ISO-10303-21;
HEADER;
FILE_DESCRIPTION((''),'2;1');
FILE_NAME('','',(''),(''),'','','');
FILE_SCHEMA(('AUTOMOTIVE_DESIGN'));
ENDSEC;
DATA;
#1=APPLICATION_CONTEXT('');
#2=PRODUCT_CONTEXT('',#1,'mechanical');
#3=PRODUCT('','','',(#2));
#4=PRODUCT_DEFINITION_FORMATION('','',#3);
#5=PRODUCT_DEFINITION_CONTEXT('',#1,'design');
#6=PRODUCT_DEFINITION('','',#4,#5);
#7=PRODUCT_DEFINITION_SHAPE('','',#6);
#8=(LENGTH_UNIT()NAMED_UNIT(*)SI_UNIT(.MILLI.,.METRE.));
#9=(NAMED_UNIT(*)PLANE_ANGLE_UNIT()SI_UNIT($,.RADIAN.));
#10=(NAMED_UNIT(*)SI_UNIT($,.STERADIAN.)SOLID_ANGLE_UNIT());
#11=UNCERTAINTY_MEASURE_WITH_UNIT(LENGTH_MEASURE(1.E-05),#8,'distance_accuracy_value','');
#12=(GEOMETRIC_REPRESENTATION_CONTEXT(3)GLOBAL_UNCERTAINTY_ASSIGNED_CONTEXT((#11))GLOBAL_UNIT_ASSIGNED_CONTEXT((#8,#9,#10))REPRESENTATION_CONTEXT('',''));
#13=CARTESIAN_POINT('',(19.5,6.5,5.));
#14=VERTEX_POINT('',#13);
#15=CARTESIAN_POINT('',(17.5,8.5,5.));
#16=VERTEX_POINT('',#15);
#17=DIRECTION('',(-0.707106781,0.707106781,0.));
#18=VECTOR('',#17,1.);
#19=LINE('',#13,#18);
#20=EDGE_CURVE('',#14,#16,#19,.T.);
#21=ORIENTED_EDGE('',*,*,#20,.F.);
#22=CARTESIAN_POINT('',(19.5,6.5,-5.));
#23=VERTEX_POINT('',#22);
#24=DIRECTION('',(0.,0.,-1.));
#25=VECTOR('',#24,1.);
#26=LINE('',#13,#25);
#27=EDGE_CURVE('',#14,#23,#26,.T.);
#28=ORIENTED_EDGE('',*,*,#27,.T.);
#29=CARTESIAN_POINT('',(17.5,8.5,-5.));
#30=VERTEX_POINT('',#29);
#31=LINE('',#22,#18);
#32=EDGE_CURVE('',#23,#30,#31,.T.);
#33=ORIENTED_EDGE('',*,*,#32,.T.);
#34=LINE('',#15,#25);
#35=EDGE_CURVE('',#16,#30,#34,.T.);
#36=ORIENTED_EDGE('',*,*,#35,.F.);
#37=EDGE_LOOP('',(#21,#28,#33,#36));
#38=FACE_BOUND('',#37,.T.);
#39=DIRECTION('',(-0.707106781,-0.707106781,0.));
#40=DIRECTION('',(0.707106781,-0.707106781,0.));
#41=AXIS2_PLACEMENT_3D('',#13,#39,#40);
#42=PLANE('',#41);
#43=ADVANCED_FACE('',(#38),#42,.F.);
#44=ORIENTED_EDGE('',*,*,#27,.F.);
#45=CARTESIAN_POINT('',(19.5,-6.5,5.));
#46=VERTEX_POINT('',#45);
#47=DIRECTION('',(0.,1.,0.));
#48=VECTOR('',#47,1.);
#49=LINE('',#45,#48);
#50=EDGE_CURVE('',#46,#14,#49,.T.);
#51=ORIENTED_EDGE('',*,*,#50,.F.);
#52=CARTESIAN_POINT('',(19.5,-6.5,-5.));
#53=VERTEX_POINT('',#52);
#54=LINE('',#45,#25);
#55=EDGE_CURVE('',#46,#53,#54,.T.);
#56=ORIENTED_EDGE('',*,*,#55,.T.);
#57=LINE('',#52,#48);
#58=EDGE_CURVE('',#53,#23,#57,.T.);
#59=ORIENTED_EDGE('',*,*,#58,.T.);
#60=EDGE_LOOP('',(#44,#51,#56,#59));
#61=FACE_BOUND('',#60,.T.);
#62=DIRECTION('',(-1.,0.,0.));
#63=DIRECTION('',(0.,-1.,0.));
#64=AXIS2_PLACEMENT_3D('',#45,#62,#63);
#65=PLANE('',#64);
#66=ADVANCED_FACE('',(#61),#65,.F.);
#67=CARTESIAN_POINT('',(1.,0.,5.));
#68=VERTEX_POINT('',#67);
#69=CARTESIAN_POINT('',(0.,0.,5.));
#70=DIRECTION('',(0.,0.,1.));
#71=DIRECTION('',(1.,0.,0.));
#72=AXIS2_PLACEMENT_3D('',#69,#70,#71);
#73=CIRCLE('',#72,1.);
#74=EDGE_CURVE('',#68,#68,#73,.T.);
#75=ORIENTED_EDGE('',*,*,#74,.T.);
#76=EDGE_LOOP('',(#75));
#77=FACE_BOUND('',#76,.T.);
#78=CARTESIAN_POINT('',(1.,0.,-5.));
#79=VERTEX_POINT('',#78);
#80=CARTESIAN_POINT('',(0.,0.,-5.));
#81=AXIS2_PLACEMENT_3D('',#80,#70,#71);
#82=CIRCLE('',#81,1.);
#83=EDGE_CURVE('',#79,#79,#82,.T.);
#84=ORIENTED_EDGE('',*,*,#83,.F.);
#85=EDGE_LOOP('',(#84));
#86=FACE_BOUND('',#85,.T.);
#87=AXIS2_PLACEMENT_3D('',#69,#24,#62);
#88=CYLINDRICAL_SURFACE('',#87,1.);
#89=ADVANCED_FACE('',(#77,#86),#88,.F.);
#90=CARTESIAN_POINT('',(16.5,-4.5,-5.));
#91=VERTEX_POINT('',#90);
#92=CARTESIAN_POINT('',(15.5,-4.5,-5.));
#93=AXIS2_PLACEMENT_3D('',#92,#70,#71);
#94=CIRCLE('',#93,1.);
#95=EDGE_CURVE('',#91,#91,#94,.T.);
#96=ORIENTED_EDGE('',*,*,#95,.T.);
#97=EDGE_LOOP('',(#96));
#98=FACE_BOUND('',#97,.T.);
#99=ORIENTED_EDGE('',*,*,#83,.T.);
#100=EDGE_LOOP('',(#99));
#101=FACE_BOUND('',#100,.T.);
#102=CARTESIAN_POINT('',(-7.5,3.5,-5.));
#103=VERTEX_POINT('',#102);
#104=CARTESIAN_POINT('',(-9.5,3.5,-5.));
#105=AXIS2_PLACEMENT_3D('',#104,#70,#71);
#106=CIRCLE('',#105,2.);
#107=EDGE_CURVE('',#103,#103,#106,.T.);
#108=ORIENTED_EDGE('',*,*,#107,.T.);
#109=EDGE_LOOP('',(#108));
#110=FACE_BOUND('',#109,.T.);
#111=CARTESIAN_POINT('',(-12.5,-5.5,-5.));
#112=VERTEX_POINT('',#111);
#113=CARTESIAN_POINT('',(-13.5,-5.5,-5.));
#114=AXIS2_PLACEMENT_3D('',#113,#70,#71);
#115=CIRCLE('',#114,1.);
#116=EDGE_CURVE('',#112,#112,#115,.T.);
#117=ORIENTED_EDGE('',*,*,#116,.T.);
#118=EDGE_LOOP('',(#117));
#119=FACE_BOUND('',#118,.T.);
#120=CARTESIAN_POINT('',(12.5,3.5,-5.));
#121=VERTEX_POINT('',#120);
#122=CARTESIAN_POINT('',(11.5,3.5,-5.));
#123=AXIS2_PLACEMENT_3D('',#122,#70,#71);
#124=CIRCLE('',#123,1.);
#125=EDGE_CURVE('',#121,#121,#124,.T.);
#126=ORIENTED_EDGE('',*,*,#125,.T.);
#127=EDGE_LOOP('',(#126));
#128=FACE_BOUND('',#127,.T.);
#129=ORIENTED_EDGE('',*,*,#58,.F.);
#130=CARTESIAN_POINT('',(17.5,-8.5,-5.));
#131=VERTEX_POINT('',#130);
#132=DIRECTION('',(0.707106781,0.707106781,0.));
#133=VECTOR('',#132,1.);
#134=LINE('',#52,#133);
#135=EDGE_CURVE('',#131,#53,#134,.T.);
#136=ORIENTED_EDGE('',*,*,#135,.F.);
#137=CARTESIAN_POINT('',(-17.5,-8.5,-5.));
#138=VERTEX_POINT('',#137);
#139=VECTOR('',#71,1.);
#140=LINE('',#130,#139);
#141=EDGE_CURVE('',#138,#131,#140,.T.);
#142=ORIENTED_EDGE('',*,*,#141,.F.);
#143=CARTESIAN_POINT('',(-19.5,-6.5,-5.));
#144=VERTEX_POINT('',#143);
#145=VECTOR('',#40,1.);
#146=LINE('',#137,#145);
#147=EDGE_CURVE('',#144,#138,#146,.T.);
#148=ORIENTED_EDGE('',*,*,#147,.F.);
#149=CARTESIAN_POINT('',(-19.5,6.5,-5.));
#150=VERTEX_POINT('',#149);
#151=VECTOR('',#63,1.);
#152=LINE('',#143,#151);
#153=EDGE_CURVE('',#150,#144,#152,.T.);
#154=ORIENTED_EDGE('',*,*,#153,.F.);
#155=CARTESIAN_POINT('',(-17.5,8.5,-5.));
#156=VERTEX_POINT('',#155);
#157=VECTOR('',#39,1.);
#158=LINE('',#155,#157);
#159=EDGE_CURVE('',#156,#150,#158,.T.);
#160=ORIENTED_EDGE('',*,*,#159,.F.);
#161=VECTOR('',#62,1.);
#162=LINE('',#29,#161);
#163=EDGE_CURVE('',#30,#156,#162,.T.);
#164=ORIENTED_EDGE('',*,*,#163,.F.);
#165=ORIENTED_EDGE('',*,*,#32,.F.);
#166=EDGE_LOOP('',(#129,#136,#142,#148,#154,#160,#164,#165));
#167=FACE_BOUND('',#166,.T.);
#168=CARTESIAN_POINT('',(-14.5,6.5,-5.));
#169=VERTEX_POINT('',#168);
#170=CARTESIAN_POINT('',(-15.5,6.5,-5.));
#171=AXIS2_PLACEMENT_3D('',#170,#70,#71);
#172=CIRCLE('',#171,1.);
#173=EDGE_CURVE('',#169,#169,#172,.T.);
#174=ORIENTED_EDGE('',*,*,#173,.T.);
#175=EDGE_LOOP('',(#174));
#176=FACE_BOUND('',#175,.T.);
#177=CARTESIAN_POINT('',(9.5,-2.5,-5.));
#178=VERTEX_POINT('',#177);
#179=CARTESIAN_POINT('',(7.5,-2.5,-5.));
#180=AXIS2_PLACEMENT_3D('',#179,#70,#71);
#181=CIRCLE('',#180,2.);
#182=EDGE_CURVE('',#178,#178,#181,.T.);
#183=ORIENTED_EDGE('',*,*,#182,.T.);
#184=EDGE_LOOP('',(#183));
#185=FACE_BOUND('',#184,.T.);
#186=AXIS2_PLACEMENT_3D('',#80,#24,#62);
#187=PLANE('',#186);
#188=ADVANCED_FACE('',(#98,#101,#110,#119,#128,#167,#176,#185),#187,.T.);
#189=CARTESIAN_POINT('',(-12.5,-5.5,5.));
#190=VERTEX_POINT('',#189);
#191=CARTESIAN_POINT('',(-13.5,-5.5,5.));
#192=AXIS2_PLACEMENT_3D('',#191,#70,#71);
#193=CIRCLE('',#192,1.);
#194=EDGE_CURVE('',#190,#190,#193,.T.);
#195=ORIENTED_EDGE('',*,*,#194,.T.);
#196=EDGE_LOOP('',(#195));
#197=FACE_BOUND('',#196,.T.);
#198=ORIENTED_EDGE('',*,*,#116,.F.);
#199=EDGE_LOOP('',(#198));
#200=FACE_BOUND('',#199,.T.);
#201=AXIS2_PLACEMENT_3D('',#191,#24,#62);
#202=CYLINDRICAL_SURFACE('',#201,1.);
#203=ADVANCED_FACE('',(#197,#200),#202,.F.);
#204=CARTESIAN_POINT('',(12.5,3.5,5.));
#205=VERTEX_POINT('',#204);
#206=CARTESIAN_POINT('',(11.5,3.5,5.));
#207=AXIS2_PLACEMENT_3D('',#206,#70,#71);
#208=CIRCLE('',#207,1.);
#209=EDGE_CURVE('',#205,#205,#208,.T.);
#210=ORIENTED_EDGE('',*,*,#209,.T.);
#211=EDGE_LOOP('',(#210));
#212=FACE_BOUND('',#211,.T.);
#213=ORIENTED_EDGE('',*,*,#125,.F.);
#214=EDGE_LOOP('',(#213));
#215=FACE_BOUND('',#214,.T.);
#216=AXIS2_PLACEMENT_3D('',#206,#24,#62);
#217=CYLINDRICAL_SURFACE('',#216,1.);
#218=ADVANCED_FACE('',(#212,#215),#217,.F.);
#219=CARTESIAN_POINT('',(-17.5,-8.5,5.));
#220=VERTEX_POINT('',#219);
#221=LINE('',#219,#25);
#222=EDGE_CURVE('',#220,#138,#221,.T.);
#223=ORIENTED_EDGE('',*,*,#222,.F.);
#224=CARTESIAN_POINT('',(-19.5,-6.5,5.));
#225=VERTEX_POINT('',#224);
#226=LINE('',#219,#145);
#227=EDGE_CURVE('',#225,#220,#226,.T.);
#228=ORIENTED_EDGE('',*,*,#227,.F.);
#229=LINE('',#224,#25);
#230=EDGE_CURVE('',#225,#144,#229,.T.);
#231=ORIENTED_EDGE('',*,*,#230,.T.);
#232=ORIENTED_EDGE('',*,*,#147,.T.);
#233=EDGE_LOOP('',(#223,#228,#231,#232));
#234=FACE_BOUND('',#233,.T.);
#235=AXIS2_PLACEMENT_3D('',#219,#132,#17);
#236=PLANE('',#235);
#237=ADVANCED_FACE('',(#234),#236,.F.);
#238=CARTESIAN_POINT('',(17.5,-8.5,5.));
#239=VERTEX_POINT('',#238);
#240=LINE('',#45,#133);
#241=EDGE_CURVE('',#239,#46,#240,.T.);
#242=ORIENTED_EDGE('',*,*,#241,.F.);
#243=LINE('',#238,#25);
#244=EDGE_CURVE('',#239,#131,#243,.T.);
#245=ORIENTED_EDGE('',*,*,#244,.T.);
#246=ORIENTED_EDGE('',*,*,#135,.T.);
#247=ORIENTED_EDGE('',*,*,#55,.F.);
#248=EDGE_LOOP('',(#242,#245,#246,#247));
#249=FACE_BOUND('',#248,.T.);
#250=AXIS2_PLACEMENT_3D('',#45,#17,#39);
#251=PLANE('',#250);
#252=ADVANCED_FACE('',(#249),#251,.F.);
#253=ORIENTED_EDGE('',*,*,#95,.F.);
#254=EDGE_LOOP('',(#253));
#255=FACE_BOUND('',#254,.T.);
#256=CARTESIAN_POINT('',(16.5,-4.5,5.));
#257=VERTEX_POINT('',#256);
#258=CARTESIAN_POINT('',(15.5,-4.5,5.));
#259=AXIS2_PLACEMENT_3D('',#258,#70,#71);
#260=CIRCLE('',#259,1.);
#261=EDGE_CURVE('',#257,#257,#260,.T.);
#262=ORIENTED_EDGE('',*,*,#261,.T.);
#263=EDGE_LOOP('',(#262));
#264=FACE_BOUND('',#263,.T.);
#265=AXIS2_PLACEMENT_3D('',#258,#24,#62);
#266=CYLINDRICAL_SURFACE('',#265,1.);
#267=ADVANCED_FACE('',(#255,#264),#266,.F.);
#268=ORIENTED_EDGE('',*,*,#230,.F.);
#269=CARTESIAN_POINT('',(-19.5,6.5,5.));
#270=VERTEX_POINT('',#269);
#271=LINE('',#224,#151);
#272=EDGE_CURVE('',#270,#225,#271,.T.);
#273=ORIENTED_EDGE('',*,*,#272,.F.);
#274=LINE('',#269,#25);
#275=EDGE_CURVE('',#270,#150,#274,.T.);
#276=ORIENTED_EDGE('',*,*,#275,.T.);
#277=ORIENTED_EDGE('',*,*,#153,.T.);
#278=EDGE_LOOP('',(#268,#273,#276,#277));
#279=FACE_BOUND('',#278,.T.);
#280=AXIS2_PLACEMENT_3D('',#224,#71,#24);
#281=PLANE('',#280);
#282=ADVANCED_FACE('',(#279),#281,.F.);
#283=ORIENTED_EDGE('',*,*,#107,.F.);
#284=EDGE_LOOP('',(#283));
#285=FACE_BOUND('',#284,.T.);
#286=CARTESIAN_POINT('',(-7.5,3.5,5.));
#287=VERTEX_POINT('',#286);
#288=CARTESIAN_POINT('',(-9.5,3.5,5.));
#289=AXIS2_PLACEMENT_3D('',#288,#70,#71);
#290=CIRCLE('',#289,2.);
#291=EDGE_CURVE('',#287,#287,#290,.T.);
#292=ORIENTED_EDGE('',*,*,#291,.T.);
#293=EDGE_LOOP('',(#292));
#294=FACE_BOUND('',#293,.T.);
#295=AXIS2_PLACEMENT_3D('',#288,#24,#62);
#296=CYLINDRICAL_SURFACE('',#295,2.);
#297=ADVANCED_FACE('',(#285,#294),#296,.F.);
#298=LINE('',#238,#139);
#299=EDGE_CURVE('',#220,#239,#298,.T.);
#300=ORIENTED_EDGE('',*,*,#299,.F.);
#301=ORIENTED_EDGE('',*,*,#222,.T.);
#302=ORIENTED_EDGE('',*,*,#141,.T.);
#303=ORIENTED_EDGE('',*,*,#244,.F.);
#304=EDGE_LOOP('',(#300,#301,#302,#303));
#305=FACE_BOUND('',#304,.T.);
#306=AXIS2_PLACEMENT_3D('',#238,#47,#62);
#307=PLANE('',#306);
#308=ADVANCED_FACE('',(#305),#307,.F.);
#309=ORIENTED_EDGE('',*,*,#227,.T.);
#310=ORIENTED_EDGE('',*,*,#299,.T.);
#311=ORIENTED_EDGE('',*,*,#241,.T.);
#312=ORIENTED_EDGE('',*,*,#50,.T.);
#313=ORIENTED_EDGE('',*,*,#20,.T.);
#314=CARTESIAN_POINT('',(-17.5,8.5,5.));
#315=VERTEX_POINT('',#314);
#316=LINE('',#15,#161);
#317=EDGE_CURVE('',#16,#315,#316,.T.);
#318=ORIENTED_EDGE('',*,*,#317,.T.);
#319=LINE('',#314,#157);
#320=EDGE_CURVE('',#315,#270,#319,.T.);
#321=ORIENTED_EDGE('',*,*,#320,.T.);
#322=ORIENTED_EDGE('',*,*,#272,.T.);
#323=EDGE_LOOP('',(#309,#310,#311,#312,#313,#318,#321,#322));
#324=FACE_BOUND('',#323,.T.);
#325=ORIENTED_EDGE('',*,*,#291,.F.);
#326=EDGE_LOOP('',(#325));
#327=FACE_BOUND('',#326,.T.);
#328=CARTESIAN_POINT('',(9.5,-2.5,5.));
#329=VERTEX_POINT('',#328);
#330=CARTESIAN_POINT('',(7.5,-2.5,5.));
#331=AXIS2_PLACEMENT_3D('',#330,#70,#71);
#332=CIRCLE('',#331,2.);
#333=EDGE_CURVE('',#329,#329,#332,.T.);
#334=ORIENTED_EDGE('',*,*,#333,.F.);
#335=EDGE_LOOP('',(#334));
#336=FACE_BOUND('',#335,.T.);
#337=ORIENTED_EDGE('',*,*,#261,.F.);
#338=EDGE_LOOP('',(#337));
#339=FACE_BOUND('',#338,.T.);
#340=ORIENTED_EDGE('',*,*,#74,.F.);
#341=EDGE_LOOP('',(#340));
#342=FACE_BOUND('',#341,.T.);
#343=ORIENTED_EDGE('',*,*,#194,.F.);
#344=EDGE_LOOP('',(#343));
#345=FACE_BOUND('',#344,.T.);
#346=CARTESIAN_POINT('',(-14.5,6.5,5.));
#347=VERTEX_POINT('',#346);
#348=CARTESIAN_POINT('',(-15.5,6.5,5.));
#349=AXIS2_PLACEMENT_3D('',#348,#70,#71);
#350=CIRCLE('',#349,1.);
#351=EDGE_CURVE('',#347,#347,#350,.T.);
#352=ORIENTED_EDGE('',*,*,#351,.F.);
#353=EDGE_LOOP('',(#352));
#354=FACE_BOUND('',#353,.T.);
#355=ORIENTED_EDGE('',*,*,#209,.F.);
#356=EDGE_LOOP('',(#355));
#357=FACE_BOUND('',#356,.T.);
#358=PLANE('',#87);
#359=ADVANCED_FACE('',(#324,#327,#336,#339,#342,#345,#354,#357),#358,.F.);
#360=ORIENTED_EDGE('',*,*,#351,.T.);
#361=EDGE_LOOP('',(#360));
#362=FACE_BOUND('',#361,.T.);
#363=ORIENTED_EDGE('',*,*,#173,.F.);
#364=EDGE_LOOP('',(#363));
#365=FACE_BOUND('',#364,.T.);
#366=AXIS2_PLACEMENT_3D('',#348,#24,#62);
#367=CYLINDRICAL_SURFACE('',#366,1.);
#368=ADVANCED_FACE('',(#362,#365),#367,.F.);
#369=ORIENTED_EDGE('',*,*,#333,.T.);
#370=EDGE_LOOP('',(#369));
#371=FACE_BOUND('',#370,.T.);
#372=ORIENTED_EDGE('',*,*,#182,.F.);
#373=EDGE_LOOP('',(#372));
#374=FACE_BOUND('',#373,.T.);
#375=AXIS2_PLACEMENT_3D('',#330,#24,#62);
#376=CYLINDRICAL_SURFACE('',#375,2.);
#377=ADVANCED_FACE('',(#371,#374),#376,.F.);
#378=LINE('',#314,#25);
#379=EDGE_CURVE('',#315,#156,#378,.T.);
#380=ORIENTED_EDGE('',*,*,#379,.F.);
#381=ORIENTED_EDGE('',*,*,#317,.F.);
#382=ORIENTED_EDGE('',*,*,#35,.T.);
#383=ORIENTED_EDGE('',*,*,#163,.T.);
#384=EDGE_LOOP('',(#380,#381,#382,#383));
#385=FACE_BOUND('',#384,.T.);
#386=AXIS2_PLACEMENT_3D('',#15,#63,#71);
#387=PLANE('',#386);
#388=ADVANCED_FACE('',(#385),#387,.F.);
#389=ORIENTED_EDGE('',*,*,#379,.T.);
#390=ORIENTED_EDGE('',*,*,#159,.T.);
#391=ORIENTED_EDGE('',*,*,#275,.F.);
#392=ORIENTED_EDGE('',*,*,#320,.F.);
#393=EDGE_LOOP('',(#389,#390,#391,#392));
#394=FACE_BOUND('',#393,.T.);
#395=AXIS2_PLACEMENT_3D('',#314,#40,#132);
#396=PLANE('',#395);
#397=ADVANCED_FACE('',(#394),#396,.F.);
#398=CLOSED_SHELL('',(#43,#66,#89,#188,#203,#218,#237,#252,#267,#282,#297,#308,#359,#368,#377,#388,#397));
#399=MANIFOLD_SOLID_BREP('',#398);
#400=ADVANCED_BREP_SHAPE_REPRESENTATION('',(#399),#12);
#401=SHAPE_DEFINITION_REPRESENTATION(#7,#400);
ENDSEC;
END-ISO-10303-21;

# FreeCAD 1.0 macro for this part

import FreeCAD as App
import Part
import Sketcher
from FreeCAD import Vector


def add_polygon(sketch, points):
    """Adds a closed chain of lines whose ends are joined by coincident constraints."""
    first, n = sketch.GeometryCount, len(points)
    for a, b in zip(points, points[1:] + points[:1]):
        sketch.addGeometry(Part.LineSegment(App.Vector(*a, 0), App.Vector(*b, 0)), False)
    for i in range(n):
        sketch.addConstraint(Sketcher.Constraint("Coincident", first + i, 2, first + (i + 1) % n, 1))

doc = App.newDocument("Part")
body = doc.addObject("PartDesign::Body", "Body")

sketch1 = doc.addObject("Sketcher::SketchObject", "Sketch")
body.addObject(sketch1)
sketch1.AttachmentSupport = (doc.XY_Plane, [""])
sketch1.MapMode = "FlatFace"
add_polygon(sketch1, [(-17.5, 8.5), (-19.5, 6.5), (-19.5, -6.5), (-17.5, -8.5), (17.5, -8.5), (19.5, -6.5), (19.5, 6.5), (17.5, 8.5)])
sketch1.addGeometry(Part.Circle(Vector(-13.5, -5.5, 0), Vector(0, 0, 1), 1), False)
sketch1.addGeometry(Part.Circle(Vector(15.5, -4.5, 0), Vector(0, 0, 1), 1), False)
sketch1.addGeometry(Part.Circle(Vector(7.5, -2.5, 0), Vector(0, 0, 1), 2), False)
sketch1.addGeometry(Part.Circle(Vector(0, 0, 0), Vector(0, 0, 1), 1), False)
sketch1.addGeometry(Part.Circle(Vector(-9.5, 3.5, 0), Vector(0, 0, 1), 2), False)
sketch1.addGeometry(Part.Circle(Vector(-15.5, 6.5, 0), Vector(0, 0, 1), 1), False)
sketch1.addGeometry(Part.Circle(Vector(11.5, 3.5, 0), Vector(0, 0, 1), 1), False)
sketch1.addConstraint(Sketcher.Constraint("Vertical", 1))
sketch1.addConstraint(Sketcher.Constraint("Horizontal", 3))
sketch1.addConstraint(Sketcher.Constraint("Vertical", 5))
sketch1.addConstraint(Sketcher.Constraint("Horizontal", 7))
sketch1.addConstraint(Sketcher.Constraint("Coincident", 11, 3, -1, 1))
sketch1.addConstraint(Sketcher.Constraint("Equal", 8, 9))
sketch1.addConstraint(Sketcher.Constraint("Equal", 9, 11))
sketch1.addConstraint(Sketcher.Constraint("Equal", 10, 12))
sketch1.addConstraint(Sketcher.Constraint("Equal", 11, 13))
sketch1.addConstraint(Sketcher.Constraint("Equal", 13, 14))
sketch1.addConstraint(Sketcher.Constraint("Symmetric", 0, 2, 4, 2, -1, 1))
sketch1.addConstraint(Sketcher.Constraint("Symmetric", 2, 2, 6, 2, -1, 1))
sketch1.addConstraint(Sketcher.Constraint("Perpendicular", 0, 2))
sketch1.addConstraint(Sketcher.Constraint("Perpendicular", 2, 4))
sketch1.addConstraint(Sketcher.Constraint("Perpendicular", 4, 6))
sketch1.addConstraint(Sketcher.Constraint("Horizontal", 12, 3, 14, 3))
sketch1.addConstraint(Sketcher.Constraint("Horizontal", 13, 3, 0, 2))
sketch1.addConstraint(Sketcher.Constraint("Horizontal", 1, 2, 4, 2))
sketch1.addConstraint(Sketcher.Constraint("Vertical", 3, 2, 6, 2))
sketch1.addConstraint(Sketcher.Constraint("Diameter", 8, 2.0))
sketch1.addConstraint(Sketcher.Constraint("Diameter", 10, 4.0))
sketch1.addConstraint(Sketcher.Constraint("DistanceX", 3, 1, 3, 2, 35.0))
sketch1.addConstraint(Sketcher.Constraint("DistanceY", 1, 2, 1, 1, 13.0))
sketch1.addConstraint(Sketcher.Constraint("DistanceX", 8, 3, 9, 3, 29.0))
sketch1.addConstraint(Sketcher.Constraint("DistanceY", 8, 3, 9, 3, 1.0))
sketch1.addConstraint(Sketcher.Constraint("DistanceX", 10, 3, 9, 3, 8.0))
sketch1.addConstraint(Sketcher.Constraint("DistanceY", 9, 3, 10, 3, 2.0))
sketch1.addConstraint(Sketcher.Constraint("DistanceX", 8, 3, 12, 3, 4.0))
sketch1.addConstraint(Sketcher.Constraint("DistanceY", 8, 3, 12, 3, 9.0))
sketch1.addConstraint(Sketcher.Constraint("DistanceX", 13, 3, 12, 3, 6.0))
sketch1.addConstraint(Sketcher.Constraint("DistanceY", 12, 3, 13, 3, 3.0))
sketch1.addConstraint(Sketcher.Constraint("DistanceX", 10, 3, 14, 3, 4.0))
sketch1.addConstraint(Sketcher.Constraint("DistanceX", 0, 2, 13, 3, 4.0))
sketch1.addConstraint(Sketcher.Constraint("DistanceX", 1, 2, 2, 2, 2.0))
pad1 = doc.addObject("PartDesign::Pad", "Pad")
body.addObject(pad1)
pad1.Profile = sketch1
pad1.Length = 10
pad1.Midplane = True

doc.recompute()
